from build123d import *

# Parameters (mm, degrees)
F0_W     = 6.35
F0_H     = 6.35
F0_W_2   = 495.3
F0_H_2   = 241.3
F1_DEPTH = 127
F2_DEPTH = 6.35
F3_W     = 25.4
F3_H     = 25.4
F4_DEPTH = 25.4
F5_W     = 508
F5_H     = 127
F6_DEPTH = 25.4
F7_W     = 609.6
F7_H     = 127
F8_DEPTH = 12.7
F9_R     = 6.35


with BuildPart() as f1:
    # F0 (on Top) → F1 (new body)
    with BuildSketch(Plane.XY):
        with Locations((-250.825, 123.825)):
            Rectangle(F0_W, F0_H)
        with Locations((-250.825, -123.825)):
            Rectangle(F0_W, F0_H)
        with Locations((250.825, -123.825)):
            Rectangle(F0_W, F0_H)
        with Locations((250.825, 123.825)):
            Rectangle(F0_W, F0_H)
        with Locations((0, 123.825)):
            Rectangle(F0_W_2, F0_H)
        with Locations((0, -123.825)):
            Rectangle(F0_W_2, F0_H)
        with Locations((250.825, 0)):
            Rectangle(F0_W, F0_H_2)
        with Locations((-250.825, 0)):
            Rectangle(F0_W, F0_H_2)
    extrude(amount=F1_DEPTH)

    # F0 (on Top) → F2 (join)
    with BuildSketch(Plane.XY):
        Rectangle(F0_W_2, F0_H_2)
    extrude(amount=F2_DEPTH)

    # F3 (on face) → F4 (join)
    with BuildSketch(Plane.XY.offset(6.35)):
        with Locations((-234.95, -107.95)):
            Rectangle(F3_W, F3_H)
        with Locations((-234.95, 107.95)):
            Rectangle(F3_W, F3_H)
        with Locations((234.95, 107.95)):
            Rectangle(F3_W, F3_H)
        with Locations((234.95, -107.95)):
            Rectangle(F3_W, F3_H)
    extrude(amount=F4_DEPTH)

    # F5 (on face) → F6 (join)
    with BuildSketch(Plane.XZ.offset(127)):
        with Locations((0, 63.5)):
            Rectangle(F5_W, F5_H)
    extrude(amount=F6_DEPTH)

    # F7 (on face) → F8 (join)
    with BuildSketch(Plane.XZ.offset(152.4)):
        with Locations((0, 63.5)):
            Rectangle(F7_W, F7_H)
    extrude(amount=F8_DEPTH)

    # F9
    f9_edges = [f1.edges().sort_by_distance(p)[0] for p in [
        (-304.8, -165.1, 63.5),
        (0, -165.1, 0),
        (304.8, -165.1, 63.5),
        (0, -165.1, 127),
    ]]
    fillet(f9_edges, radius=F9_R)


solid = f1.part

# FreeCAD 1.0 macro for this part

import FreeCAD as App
import Part
import Sketcher
from FreeCAD import Vector
Q = App.Units.Quantity


def edges_at(feature, points):
    """Names of the edges that pass closest to the given points."""
    edges = feature.Shape.Edges
    near = lambda p: min(range(len(edges)), key=lambda i: edges[i].distToShape(Part.Vertex(*p))[0])
    return sorted({f"Edge{near(p) + 1}" for p in points})


def add_polygon(sketch, points):
    """Adds a closed chain of lines whose ends are joined by coincident constraints."""
    first, n = sketch.GeometryCount, len(points)
    for a, b in zip(points, points[1:] + points[:1]):
        sketch.addGeometry(Part.LineSegment(App.Vector(*a, 0), App.Vector(*b, 0)), False)
    for i in range(n):
        sketch.addConstraint(Sketcher.Constraint("Coincident", first + i, 2, first + (i + 1) % n, 1))

doc = App.newDocument("Part")
body = doc.addObject("PartDesign::Body", "Body")

# Sketch on XY plane
sketch1 = doc.addObject("Sketcher::SketchObject", "Sketch")
body.addObject(sketch1)
sketch1.AttachmentSupport = (doc.XY_Plane, [""])
sketch1.MapMode = "FlatFace"
add_polygon(sketch1, [(-254, 127), (-254, -127), (254, -127), (254, 127)])  # lines 0-3
add_polygon(sketch1, [(-247.65, 120.65), (247.65, 120.65), (247.65, -120.65), (-247.65, -120.65)])  # lines 4-7
sketch1.addConstraint([
    Sketcher.Constraint("Vertical", 0),
    Sketcher.Constraint("Horizontal", 1),
    Sketcher.Constraint("Vertical", 2),
    Sketcher.Constraint("Horizontal", 3),
    Sketcher.Constraint("Horizontal", 4),
    Sketcher.Constraint("Vertical", 5),
    Sketcher.Constraint("Horizontal", 6),
    Sketcher.Constraint("Vertical", 7),
    Sketcher.Constraint("Symmetric", 0, 2, 2, 2, -1, 1),
    Sketcher.Constraint("Symmetric", 4, 2, 6, 2, -1, 1),
    Sketcher.Constraint("DistanceX", 1, 1, 1, 2, Q("20 in")),
    Sketcher.Constraint("DistanceY", 0, 2, 0, 1, Q("10 in")),
    Sketcher.Constraint("DistanceX", 4, 1, 4, 2, Q("19.5 in")),
    Sketcher.Constraint("DistanceY", 5, 2, 5, 1, Q("9.5 in")),
])
pad1 = doc.addObject("PartDesign::Pad", "Pad")
body.addObject(pad1)
pad1.Profile = sketch1
pad1.Length = Q("5 in")

# Sketch on XY plane
sketch2 = doc.addObject("Sketcher::SketchObject", "Sketch001")
body.addObject(sketch2)
sketch2.AttachmentSupport = (doc.XY_Plane, [""])
sketch2.MapMode = "FlatFace"
add_polygon(sketch2, [(-247.65, 120.65), (-247.65, -120.65), (247.65, -120.65), (247.65, 120.65)])  # lines 0-3
sketch2.addConstraint([
    Sketcher.Constraint("Vertical", 0),
    Sketcher.Constraint("Horizontal", 1),
    Sketcher.Constraint("Vertical", 2),
    Sketcher.Constraint("Horizontal", 3),
    Sketcher.Constraint("Symmetric", 0, 2, 2, 2, -1, 1),
    Sketcher.Constraint("DistanceX", 1, 1, 1, 2, Q("19.5 in")),
    Sketcher.Constraint("DistanceY", 0, 2, 0, 1, Q("9.5 in")),
])
pad2 = doc.addObject("PartDesign::Pad", "Pad001")
body.addObject(pad2)
pad2.Profile = sketch2
pad2.Length = Q("0.25 in")

# Sketch on XY plane
sketch3 = doc.addObject("Sketcher::SketchObject", "Sketch002")
body.addObject(sketch3)
sketch3.AttachmentSupport = (doc.XY_Plane, [""])
sketch3.MapMode = "FlatFace"
sketch3.AttachmentOffset = App.Placement(Vector(0, 0, 0.25 * 25.4), App.Rotation())
add_polygon(sketch3, [(-247.65, -95.25), (-247.65, -120.65), (-222.25, -120.65), (-222.25, -95.25)])  # lines 0-3
add_polygon(sketch3, [(-247.65, 120.65), (-247.65, 95.25), (-222.25, 95.25), (-222.25, 120.65)])  # lines 4-7
add_polygon(sketch3, [(222.25, 120.65), (222.25, 95.25), (247.65, 95.25), (247.65, 120.65)])  # lines 8-11
add_polygon(sketch3, [(222.25, -95.25), (222.25, -120.65), (247.65, -120.65), (247.65, -95.25)])  # lines 12-15
sketch3.addConstraint([
    Sketcher.Constraint("Vertical", 0),
    Sketcher.Constraint("Horizontal", 1),
    Sketcher.Constraint("Vertical", 2),
    Sketcher.Constraint("Horizontal", 3),
    Sketcher.Constraint("Vertical", 4),
    Sketcher.Constraint("Horizontal", 5),
    Sketcher.Constraint("Vertical", 6),
    Sketcher.Constraint("Horizontal", 7),
    Sketcher.Constraint("Vertical", 8),
    Sketcher.Constraint("Horizontal", 9),
    Sketcher.Constraint("Vertical", 10),
    Sketcher.Constraint("Horizontal", 11),
    Sketcher.Constraint("Vertical", 12),
    Sketcher.Constraint("Horizontal", 13),
    Sketcher.Constraint("Vertical", 14),
    Sketcher.Constraint("Horizontal", 15),
    Sketcher.Constraint("Symmetric", 2, 2, 8, 2, -1, 1),
    Sketcher.Constraint("Symmetric", 0, 2, 10, 2, -1, 1),
    Sketcher.Constraint("Symmetric", 6, 2, 12, 2, -1, 1),
    Sketcher.Constraint("Symmetric", 4, 2, 14, 2, -1, 1),
    Sketcher.Constraint("Symmetric", 5, 2, 8, 2, -2),
    Sketcher.Constraint("Symmetric", 7, 2, 10, 2, -2),
    Sketcher.Constraint("Equal", 15, 0),
    Sketcher.Constraint("DistanceX", 1, 1, 1, 2, Q("1 in")),
    Sketcher.Constraint("DistanceY", 3, 2, 4, 2, Q("7.5 in")),
    Sketcher.Constraint("DistanceX", 5, 2, 8, 2, Q("17.5 in")),
])
pad3 = doc.addObject("PartDesign::Pad", "Pad002")
body.addObject(pad3)
pad3.Profile = sketch3
pad3.Length = Q("1 in")

# Sketch on XZ plane
sketch4 = doc.addObject("Sketcher::SketchObject", "Sketch003")
body.addObject(sketch4)
sketch4.AttachmentSupport = (doc.XZ_Plane, [""])
sketch4.MapMode = "FlatFace"
sketch4.AttachmentOffset = App.Placement(Vector(0, 0, 5 * 25.4), App.Rotation())
add_polygon(sketch4, [(-254, 127), (-254, 0), (254, 0), (254, 127)])  # lines 0-3
sketch4.addConstraint([
    Sketcher.Constraint("Vertical", 0),
    Sketcher.Constraint("Horizontal", 1),
    Sketcher.Constraint("Vertical", 2),
    Sketcher.Constraint("Horizontal", 3),
    Sketcher.Constraint("Symmetric", 0, 2, 1, 2, -1, 1),
    Sketcher.Constraint("DistanceX", 1, 1, 1, 2, Q("20 in")),
    Sketcher.Constraint("DistanceY", 0, 2, 0, 1, Q("5 in")),
])
pad4 = doc.addObject("PartDesign::Pad", "Pad003")
body.addObject(pad4)
pad4.Profile = sketch4
pad4.Length = Q("1 in")

# Sketch on XZ plane
sketch5 = doc.addObject("Sketcher::SketchObject", "Sketch004")
body.addObject(sketch5)
sketch5.AttachmentSupport = (doc.XZ_Plane, [""])
sketch5.MapMode = "FlatFace"
sketch5.AttachmentOffset = App.Placement(Vector(0, 0, 6 * 25.4), App.Rotation())
add_polygon(sketch5, [(-304.8, 127), (-304.8, 0), (304.8, 0), (304.8, 127)])  # lines 0-3
sketch5.addConstraint([
    Sketcher.Constraint("Vertical", 0),
    Sketcher.Constraint("Horizontal", 1),
    Sketcher.Constraint("Vertical", 2),
    Sketcher.Constraint("Horizontal", 3),
    Sketcher.Constraint("Symmetric", 0, 2, 1, 2, -1, 1),
    Sketcher.Constraint("DistanceX", 1, 1, 1, 2, Q("24 in")),
    Sketcher.Constraint("DistanceY", 0, 2, 0, 1, Q("5 in")),
])
pad5 = doc.addObject("PartDesign::Pad", "Pad004")
body.addObject(pad5)
pad5.Profile = sketch5
pad5.Length = Q("0.5 in")
doc.recompute()

fillet = doc.addObject("PartDesign::Fillet", "Fillet")
body.addObject(fillet)
fillet.Base = (pad5, edges_at(pad5, [
    (-304.8, -165.1, 63.5),
    (0, -165.1, 0),
    (304.8, -165.1, 63.5),
    (0, -165.1, 127),
]))
fillet.Radius = Q("0.25 in")

doc.recompute()
